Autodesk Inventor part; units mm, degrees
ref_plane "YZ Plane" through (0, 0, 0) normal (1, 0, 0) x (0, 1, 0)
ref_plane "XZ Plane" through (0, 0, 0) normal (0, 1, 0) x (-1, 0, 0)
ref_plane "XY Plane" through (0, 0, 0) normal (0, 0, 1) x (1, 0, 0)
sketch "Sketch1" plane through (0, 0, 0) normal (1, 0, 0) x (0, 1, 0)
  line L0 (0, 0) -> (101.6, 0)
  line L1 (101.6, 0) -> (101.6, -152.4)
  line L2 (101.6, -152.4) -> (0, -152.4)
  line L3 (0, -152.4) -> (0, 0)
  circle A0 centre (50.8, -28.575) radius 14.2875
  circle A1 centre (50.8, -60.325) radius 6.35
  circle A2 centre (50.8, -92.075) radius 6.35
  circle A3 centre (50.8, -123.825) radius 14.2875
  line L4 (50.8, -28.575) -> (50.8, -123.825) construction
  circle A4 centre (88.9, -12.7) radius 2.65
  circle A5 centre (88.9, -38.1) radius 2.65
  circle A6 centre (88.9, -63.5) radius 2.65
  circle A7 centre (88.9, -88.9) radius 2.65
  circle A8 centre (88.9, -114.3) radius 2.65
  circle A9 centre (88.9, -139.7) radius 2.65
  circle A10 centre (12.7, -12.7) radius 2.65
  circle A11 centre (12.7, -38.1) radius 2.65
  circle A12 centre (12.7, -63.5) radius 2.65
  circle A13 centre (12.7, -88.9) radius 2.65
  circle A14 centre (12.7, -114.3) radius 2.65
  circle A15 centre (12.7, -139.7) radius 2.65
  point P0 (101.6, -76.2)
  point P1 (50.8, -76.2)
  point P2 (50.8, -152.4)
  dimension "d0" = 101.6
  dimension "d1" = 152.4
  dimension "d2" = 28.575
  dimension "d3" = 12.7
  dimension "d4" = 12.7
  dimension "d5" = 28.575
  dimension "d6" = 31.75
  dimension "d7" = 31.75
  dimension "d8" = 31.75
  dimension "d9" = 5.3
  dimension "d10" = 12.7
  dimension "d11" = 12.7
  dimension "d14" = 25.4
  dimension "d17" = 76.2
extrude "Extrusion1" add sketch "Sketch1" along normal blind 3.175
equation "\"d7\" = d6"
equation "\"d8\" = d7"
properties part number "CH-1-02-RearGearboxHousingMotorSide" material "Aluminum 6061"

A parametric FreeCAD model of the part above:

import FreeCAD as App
import Part
import Sketcher
from FreeCAD import Vector
Q = App.Units.Quantity


def add_polygon(sketch, points):
    """Adds a closed chain of lines whose ends are joined by coincident constraints."""
    first, n = sketch.GeometryCount, len(points)
    for a, b in zip(points, points[1:] + points[:1]):
        sketch.addGeometry(Part.LineSegment(App.Vector(*a, 0), App.Vector(*b, 0)), False)
    for i in range(n):
        sketch.addConstraint(Sketcher.Constraint("Coincident", first + i, 2, first + (i + 1) % n, 1))

doc = App.newDocument("Part")
params = doc.addObject("Spreadsheet::Sheet", "Params")
for row, (alias, value) in enumerate([
    ("sketch1_diameter", "0.5 in"),
    ("sketch1_width", "4 in"),
    ("sketch1_height", "6 in"),
    ("sketch1_diameter2", "1.125 in"),
    ("pad1_length", "0.125 in"),
], start=1):
    params.set(f"A{row}", alias)
    params.set(f"B{row}", "=" + value)
    params.setAlias(f"B{row}", alias)

body = doc.addObject("PartDesign::Body", "Body")

sketch1 = body.newObject("Sketcher::SketchObject", "Sketch")
sketch1.AttachmentSupport = (doc.getObject("YZ_Plane"), [""])
sketch1.MapMode = "FlatFace"
add_polygon(sketch1, [(101.6, 0), (0, 0), (0, -152.4), (101.6, -152.4)])
sketch1.addGeometry(Part.Circle(Vector(12.7, -139.7, 0), Vector(0, 0, 1), 2.6), False)
sketch1.addGeometry(Part.Circle(Vector(50.8, -123.8, 0), Vector(0, 0, 1), 14.3), False)
sketch1.addGeometry(Part.Circle(Vector(12.7, -114.3, 0), Vector(0, 0, 1), 2.6), False)
sketch1.addGeometry(Part.Circle(Vector(12.7, -88.9, 0), Vector(0, 0, 1), 2.6), False)
sketch1.addGeometry(Part.Circle(Vector(50.8, -92.1, 0), Vector(0, 0, 1), 6.3), False)
sketch1.addGeometry(Part.Circle(Vector(88.9, -139.7, 0), Vector(0, 0, 1), 2.6), False)
sketch1.addGeometry(Part.Circle(Vector(88.9, -114.3, 0), Vector(0, 0, 1), 2.6), False)
sketch1.addGeometry(Part.Circle(Vector(88.9, -88.9, 0), Vector(0, 0, 1), 2.6), False)
sketch1.addGeometry(Part.Circle(Vector(12.7, -63.5, 0), Vector(0, 0, 1), 2.6), False)
sketch1.addGeometry(Part.Circle(Vector(50.8, -60.3, 0), Vector(0, 0, 1), 6.3), False)
sketch1.addGeometry(Part.Circle(Vector(12.7, -38.1, 0), Vector(0, 0, 1), 2.6), False)
sketch1.addGeometry(Part.Circle(Vector(12.7, -12.7, 0), Vector(0, 0, 1), 2.6), False)
sketch1.addGeometry(Part.Circle(Vector(50.8, -28.6, 0), Vector(0, 0, 1), 14.3), False)
sketch1.addGeometry(Part.Circle(Vector(88.9, -63.5, 0), Vector(0, 0, 1), 2.6), False)
sketch1.addGeometry(Part.Circle(Vector(88.9, -38.1, 0), Vector(0, 0, 1), 2.6), False)
sketch1.addGeometry(Part.Circle(Vector(88.9, -12.7, 0), Vector(0, 0, 1), 2.6), False)
sketch1.addConstraint(Sketcher.Constraint("Horizontal", 0))
sketch1.addConstraint(Sketcher.Constraint("Vertical", 1))
sketch1.addConstraint(Sketcher.Constraint("Horizontal", 2))
sketch1.addConstraint(Sketcher.Constraint("Vertical", 3))
sketch1.addConstraint(Sketcher.Constraint("Coincident", 0, 2, -1, 1))
sketch1.addConstraint(Sketcher.Constraint("Equal", 4, 6))
sketch1.addConstraint(Sketcher.Constraint("Equal", 6, 7))
sketch1.addConstraint(Sketcher.Constraint("Equal", 7, 9))
sketch1.addConstraint(Sketcher.Constraint("Equal", 9, 10))
sketch1.addConstraint(Sketcher.Constraint("Equal", 10, 11))
sketch1.addConstraint(Sketcher.Constraint("Equal", 11, 12))
sketch1.addConstraint(Sketcher.Constraint("Equal", 8, 13))
sketch1.addConstraint(Sketcher.Constraint("Equal", 12, 14))
sketch1.addConstraint(Sketcher.Constraint("Equal", 14, 15))
sketch1.addConstraint(Sketcher.Constraint("Equal", 5, 16))
sketch1.addConstraint(Sketcher.Constraint("Equal", 15, 17))
sketch1.addConstraint(Sketcher.Constraint("Equal", 17, 18))
sketch1.addConstraint(Sketcher.Constraint("Equal", 18, 19))
sketch1.addConstraint(Sketcher.Constraint("Horizontal", 4, 3, 9, 3))
sketch1.addConstraint(Sketcher.Constraint("Horizontal", 6, 3, 10, 3))
sketch1.addConstraint(Sketcher.Constraint("Horizontal", 7, 3, 11, 3))
sketch1.addConstraint(Sketcher.Constraint("Horizontal", 12, 3, 17, 3))
sketch1.addConstraint(Sketcher.Constraint("Horizontal", 14, 3, 18, 3))
sketch1.addConstraint(Sketcher.Constraint("Horizontal", 15, 3, 19, 3))
sketch1.addConstraint(Sketcher.Constraint("Vertical", 4, 3, 6, 3))
sketch1.addConstraint(Sketcher.Constraint("Vertical", 6, 3, 7, 3))
sketch1.addConstraint(Sketcher.Constraint("Vertical", 5, 3, 8, 3))
sketch1.addConstraint(Sketcher.Constraint("Vertical", 9, 3, 10, 3))
sketch1.addConstraint(Sketcher.Constraint("Vertical", 10, 3, 11, 3))
sketch1.addConstraint(Sketcher.Constraint("Vertical", 7, 3, 12, 3))
sketch1.addConstraint(Sketcher.Constraint("Vertical", 8, 3, 13, 3))
sketch1.addConstraint(Sketcher.Constraint("Vertical", 12, 3, 14, 3))
sketch1.addConstraint(Sketcher.Constraint("Vertical", 14, 3, 15, 3))
sketch1.addConstraint(Sketcher.Constraint("Vertical", 13, 3, 16, 3))
sketch1.addConstraint(Sketcher.Constraint("Vertical", 11, 3, 17, 3))
sketch1.addConstraint(Sketcher.Constraint("Vertical", 17, 3, 18, 3))
sketch1.addConstraint(Sketcher.Constraint("Vertical", 18, 3, 19, 3))
sketch1.addConstraint(Sketcher.Constraint("Diameter", 8, Q("0.5 in")))
sketch1.addConstraint(Sketcher.Constraint("DistanceX", 0, 2, 0, 1, Q("4 in")))
sketch1.addConstraint(Sketcher.Constraint("DistanceY", 1, 2, 1, 1, Q("6 in")))
sketch1.addConstraint(Sketcher.Constraint("Diameter", 5, Q("1.125 in")))
sketch1.addConstraint(Sketcher.Constraint("DistanceY", 4, 3, 6, 3, Q("1 in")))
sketch1.addConstraint(Sketcher.Constraint("DistanceY", 6, 3, 7, 3, Q("1 in")))
sketch1.addConstraint(Sketcher.Constraint("DistanceX", 4, 3, 9, 3, Q("3 in")))
sketch1.addConstraint(Sketcher.Constraint("DistanceY", 7, 3, 12, 3, Q("1 in")))
sketch1.addConstraint(Sketcher.Constraint("DistanceY", 12, 3, 14, 3, Q("1 in")))
sketch1.addConstraint(Sketcher.Constraint("DistanceY", 14, 3, 15, 3, Q("1 in")))
sketch1.addConstraint(Sketcher.Constraint("DistanceX", -1, 1, 4, 3, Q("0.5 in")))
sketch1.addConstraint(Sketcher.Constraint("DistanceY", 15, 3, -1, 1, Q("0.5 in")))
sketch1.addConstraint(Sketcher.Constraint("Diameter", 4, 5.3))
sketch1.addConstraint(Sketcher.Constraint("DistanceY", 5, 3, 8, 3, Q("1.25 in")))
sketch1.addConstraint(Sketcher.Constraint("DistanceY", 8, 3, 13, 3, Q("1.25 in")))
sketch1.addConstraint(Sketcher.Constraint("DistanceY", 13, 3, 16, 3, Q("1.25 in")))
sketch1.addConstraint(Sketcher.Constraint("DistanceX", -1, 1, 5, 3, Q("2 in")))
sketch1.addConstraint(Sketcher.Constraint("DistanceY", 16, 3, -1, 1, Q("1.125 in")))
sketch1.setExpression("Constraints[41]", "Params.sketch1_diameter")
sketch1.setExpression("Constraints[42]", "Params.sketch1_width")
sketch1.setExpression("Constraints[43]", "Params.sketch1_height")
sketch1.setExpression("Constraints[44]", "Params.sketch1_diameter2")
pad1 = body.newObject("PartDesign::Pad", "Pad")
pad1.Profile = sketch1
pad1.setExpression("Length", "Params.pad1_length")

doc.recompute()
